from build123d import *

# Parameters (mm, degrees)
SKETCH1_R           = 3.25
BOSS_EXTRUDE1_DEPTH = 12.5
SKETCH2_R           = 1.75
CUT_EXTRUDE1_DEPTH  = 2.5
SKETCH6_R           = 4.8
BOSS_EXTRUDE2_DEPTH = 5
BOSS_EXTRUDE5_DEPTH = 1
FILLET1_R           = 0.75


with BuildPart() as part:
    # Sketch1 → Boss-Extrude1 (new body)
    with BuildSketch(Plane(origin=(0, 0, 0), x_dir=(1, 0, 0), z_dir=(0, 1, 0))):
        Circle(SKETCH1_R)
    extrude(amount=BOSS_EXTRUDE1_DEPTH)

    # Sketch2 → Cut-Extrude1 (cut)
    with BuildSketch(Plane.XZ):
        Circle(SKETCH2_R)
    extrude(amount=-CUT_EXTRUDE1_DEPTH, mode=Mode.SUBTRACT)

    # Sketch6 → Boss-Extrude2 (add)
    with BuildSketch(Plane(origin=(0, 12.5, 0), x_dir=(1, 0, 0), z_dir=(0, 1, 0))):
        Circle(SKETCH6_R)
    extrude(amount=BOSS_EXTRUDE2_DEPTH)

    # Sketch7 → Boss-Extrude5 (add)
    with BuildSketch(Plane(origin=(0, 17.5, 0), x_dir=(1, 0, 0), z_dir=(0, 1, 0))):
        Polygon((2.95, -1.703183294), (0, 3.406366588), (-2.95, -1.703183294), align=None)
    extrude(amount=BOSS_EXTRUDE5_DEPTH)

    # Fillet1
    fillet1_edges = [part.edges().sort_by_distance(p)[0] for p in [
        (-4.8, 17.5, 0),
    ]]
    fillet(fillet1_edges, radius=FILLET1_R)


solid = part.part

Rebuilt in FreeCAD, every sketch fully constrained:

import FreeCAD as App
import Part
import Sketcher

V = App.Vector
Q = App.Units.Quantity


def edges_at(feature, points):
    """Names of the edges that pass closest to the given points."""
    edges = feature.Shape.Edges
    near = lambda p: min(range(len(edges)), key=lambda i: edges[i].distToShape(Part.Vertex(*p))[0])
    return sorted({f"Edge{near(p) + 1}" for p in points})


def add_polygon(sketch, points):
    """Adds a closed chain of lines whose ends are joined by coincident constraints."""
    first, n = sketch.GeometryCount, len(points)
    for a, b in zip(points, points[1:] + points[:1]):
        sketch.addGeometry(Part.LineSegment(App.Vector(*a, 0), App.Vector(*b, 0)), False)
    for i in range(n):
        sketch.addConstraint(Sketcher.Constraint("Coincident", first + i, 2, first + (i + 1) % n, 1))

doc = App.newDocument("Part")
body = doc.addObject("PartDesign::Body", "Body")

sketch1 = body.newObject("Sketcher::SketchObject", "Sketch")
sketch1.AttachmentSupport = (doc.getObject("XZ_Plane"), [""])
sketch1.MapMode = "FlatFace"
sketch1.addGeometry(Part.Circle(V(0, 0, 0), V(0, 0, 1), 3.25), False)
sketch1.addConstraint(Sketcher.Constraint("Coincident", 0, 3, -1, 1))
sketch1.addConstraint(Sketcher.Constraint("Diameter", 0, 6.5))
pad1 = body.newObject("PartDesign::Pad", "Pad")
pad1.Profile = sketch1
pad1.Length = 12.5
pad1.Reversed = True

sketch2 = body.newObject("Sketcher::SketchObject", "Sketch001")
sketch2.AttachmentSupport = (doc.getObject("XZ_Plane"), [""])
sketch2.MapMode = "FlatFace"
sketch2.addGeometry(Part.Circle(V(0, 0, 0), V(0, 0, 1), 1.75), False)
sketch2.addConstraint(Sketcher.Constraint("Coincident", 0, 3, -1, 1))
sketch2.addConstraint(Sketcher.Constraint("Diameter", 0, 3.5))
pocket1 = body.newObject("PartDesign::Pocket", "Pocket")
pocket1.Profile = sketch2
pocket1.Length = 2.5

sketch3 = body.newObject("Sketcher::SketchObject", "Sketch002")
sketch3.AttachmentSupport = (doc.getObject("XZ_Plane"), [""])
sketch3.MapMode = "FlatFace"
sketch3.AttachmentOffset = App.Placement(V(0, 0, -12.5), App.Rotation())
sketch3.addGeometry(Part.Circle(V(0, 0, 0), V(0, 0, 1), 4.8), False)
sketch3.addConstraint(Sketcher.Constraint("Coincident", 0, 3, -1, 1))
sketch3.addConstraint(Sketcher.Constraint("Diameter", 0, 9.6))
pad2 = body.newObject("PartDesign::Pad", "Pad001")
pad2.Profile = sketch3
pad2.Length = 5
pad2.Reversed = True

sketch4 = body.newObject("Sketcher::SketchObject", "Sketch003")
sketch4.AttachmentSupport = (doc.getObject("XZ_Plane"), [""])
sketch4.MapMode = "FlatFace"
sketch4.AttachmentOffset = App.Placement(V(0, 0, -17.5), App.Rotation())
add_polygon(sketch4, [(2.95, 1.703183), (0, -3.406367), (-2.95, 1.703183)])
sketch4.addConstraint(Sketcher.Constraint("Horizontal", 2))
sketch4.addConstraint(Sketcher.Constraint("PointOnObject", 0, 2, -2))
sketch4.addConstraint(Sketcher.Constraint("Equal", 0, 1))
sketch4.addConstraint(Sketcher.Constraint("Angle", 0, Q("-120 deg")))
sketch4.addConstraint(Sketcher.Constraint("DistanceX", 2, 1, 2, 2, 5.9))
sketch4.addConstraint(Sketcher.Constraint("DistanceY", 0, 2, -1, 1, 3.406367))
pad3 = body.newObject("PartDesign::Pad", "Pad002")
pad3.Profile = sketch4
pad3.Length = 1
pad3.Reversed = True
doc.recompute()

fillet = body.newObject("PartDesign::Fillet", "Fillet")
fillet.Base = (pad3, edges_at(pad3, [(-4.8, 17.5, 0)]))
fillet.Radius = 0.75

doc.recompute()
